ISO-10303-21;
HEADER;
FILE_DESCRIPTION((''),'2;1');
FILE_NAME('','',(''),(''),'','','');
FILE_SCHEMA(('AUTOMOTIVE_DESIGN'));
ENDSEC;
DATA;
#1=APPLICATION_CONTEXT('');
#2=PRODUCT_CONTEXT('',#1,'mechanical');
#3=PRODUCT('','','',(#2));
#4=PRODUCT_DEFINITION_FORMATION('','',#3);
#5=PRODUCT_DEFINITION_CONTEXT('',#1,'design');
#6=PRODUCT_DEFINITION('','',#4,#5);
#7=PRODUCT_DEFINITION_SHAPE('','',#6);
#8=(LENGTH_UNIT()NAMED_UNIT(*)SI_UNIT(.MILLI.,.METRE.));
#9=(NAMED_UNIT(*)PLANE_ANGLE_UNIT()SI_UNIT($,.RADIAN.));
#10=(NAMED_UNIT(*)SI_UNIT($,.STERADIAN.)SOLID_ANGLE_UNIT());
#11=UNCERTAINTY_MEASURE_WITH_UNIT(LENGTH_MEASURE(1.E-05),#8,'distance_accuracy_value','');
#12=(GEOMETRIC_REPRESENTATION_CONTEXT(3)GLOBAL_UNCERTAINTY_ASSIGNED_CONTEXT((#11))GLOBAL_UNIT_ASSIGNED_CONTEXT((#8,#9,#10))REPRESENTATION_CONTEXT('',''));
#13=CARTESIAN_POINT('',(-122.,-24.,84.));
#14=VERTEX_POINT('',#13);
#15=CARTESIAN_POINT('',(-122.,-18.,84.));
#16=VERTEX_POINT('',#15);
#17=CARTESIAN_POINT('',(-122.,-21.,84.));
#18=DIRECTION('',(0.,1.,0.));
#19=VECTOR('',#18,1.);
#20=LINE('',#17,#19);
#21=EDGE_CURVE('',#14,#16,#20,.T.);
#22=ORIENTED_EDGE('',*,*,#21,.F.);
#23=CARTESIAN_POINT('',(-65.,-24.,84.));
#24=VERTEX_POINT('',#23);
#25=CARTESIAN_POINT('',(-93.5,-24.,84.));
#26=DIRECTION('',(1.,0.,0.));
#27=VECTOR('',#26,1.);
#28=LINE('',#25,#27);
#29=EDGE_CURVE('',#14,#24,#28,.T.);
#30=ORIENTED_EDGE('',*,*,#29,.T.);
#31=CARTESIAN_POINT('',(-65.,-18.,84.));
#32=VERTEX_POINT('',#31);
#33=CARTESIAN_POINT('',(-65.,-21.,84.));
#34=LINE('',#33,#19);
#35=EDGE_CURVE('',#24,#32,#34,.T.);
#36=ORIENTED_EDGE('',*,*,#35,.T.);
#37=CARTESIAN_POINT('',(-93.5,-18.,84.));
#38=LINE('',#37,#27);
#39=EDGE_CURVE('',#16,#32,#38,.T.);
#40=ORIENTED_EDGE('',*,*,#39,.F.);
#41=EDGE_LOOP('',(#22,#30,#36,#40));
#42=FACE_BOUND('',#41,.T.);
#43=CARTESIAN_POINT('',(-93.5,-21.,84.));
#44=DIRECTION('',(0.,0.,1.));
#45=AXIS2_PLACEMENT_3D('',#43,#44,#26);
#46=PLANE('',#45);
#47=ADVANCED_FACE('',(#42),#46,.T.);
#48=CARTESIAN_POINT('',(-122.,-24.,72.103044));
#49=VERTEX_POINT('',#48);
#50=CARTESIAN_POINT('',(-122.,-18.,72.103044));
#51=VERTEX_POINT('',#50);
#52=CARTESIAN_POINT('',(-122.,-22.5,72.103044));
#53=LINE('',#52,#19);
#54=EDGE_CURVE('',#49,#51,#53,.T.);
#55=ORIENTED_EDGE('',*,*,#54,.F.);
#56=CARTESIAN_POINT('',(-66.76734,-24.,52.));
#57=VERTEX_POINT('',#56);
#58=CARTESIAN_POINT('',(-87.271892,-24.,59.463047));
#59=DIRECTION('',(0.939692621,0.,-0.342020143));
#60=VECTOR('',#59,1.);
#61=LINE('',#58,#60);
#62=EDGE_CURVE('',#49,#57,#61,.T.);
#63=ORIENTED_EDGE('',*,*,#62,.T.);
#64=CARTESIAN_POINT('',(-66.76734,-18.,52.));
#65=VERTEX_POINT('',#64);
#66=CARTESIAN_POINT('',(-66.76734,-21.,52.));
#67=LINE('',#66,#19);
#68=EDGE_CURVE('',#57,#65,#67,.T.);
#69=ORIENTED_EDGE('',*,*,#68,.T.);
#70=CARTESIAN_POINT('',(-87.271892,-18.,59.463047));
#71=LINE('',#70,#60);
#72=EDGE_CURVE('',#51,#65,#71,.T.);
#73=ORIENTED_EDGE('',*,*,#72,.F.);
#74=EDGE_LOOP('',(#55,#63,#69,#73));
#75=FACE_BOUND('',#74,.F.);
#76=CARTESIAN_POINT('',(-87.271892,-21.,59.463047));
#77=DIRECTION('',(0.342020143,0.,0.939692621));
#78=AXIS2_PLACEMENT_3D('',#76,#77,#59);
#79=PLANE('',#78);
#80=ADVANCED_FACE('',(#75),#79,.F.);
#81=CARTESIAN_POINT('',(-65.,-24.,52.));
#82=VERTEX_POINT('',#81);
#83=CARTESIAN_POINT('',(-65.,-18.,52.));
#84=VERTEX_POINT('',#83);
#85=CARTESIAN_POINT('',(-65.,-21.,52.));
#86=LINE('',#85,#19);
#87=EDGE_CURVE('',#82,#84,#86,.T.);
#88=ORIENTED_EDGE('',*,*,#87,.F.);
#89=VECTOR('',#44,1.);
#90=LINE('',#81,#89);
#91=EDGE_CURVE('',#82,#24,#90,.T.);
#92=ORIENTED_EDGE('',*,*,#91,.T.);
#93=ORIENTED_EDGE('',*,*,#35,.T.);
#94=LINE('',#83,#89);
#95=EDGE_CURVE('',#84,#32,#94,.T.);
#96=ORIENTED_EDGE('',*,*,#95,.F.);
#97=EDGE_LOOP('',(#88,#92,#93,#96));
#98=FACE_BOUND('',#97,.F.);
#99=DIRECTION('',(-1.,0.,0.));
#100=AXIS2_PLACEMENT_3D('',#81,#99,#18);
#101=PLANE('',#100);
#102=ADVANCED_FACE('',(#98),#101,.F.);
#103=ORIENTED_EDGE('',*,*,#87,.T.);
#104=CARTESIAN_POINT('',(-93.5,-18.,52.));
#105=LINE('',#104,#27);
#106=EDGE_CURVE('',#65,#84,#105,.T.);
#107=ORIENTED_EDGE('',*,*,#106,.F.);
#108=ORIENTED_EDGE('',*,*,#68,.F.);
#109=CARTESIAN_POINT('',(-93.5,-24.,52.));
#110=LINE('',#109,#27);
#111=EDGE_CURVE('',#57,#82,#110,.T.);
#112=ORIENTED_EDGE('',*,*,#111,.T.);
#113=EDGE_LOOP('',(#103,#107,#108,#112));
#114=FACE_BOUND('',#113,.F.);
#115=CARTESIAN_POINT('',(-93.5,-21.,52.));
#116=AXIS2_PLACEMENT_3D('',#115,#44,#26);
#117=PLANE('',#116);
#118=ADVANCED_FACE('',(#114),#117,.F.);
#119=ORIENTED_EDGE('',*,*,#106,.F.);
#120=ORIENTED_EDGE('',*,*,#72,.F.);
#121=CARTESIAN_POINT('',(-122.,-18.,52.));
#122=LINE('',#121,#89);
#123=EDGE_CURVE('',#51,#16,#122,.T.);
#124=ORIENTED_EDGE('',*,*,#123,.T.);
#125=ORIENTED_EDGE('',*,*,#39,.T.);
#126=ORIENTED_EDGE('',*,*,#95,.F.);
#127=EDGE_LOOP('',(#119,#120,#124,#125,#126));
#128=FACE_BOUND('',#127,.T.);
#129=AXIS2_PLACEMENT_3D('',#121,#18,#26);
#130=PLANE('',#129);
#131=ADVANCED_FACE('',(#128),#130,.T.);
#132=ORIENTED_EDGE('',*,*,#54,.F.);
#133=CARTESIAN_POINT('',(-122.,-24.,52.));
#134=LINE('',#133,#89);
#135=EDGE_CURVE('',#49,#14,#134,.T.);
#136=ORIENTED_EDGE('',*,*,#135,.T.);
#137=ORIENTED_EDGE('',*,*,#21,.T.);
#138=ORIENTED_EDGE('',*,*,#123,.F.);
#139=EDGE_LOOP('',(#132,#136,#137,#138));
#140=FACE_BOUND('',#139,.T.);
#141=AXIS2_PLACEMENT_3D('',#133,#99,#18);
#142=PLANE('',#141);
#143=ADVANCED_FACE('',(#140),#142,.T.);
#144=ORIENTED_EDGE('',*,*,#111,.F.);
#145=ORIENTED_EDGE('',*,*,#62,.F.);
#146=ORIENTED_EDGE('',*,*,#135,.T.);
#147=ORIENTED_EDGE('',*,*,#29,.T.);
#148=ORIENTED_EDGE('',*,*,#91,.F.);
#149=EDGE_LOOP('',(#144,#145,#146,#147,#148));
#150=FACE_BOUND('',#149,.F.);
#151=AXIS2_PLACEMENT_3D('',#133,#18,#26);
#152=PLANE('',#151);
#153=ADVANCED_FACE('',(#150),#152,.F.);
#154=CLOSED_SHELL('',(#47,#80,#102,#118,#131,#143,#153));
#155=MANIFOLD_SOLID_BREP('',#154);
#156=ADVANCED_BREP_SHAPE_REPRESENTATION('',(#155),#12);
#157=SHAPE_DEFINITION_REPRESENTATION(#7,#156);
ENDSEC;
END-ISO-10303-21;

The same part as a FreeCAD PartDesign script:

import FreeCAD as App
import Part
import Sketcher

V = App.Vector

doc = App.newDocument("Part")
body = doc.addObject("PartDesign::Body", "Body")

# Sketch on XY plane
sketch1 = doc.addObject("Sketcher::SketchObject", "Sketch")
body.addObject(sketch1)
sketch1.AttachmentSupport = (doc.XY_Plane, [""])
sketch1.MapMode = "FlatFace"
sketch1.addGeometry([
    Part.LineSegment(V(0, 6, 0), V(0, 0, 0)),
    Part.LineSegment(V(0, 0, 0), V(80, 0, 0)),
    Part.LineSegment(V(80, 0, 0), V(80, 6, 0)),
    Part.LineSegment(V(80, 6, 0), V(0, 6, 0)),
], False)
sketch1.addConstraint([
    Sketcher.Constraint("Coincident", 0, 2, 1, 1),
    Sketcher.Constraint("Coincident", 1, 2, 2, 1),
    Sketcher.Constraint("Coincident", 2, 2, 3, 1),
    Sketcher.Constraint("Coincident", 3, 2, 0, 1),
    Sketcher.Constraint("Vertical", 0),
    Sketcher.Constraint("Horizontal", 1),
    Sketcher.Constraint("Vertical", 2),
    Sketcher.Constraint("Horizontal", 3),
    Sketcher.Constraint("Coincident", 0, 2, -1, 1),
    Sketcher.Constraint("DistanceX", 1, 1, 1, 2, 80.0),
    Sketcher.Constraint("DistanceY", 0, 2, 0, 1, 6.0),
])
pad1 = doc.addObject("PartDesign::Pad", "Pad")
body.addObject(pad1)
pad1.Profile = sketch1
pad1.Length = 20
body2 = doc.addObject("PartDesign::Body", "Body001")
doc.recompute()

body.Placement = App.Placement(V(-131.7, -24, 54.35), App.Rotation(V(0, 1, 0), 20))
boolean = doc.addObject("PartDesign::Boolean", "Boolean")
body2.addObject(boolean)
boolean.Type = "Fuse"
boolean.addObjects([body])
body3 = doc.addObject("PartDesign::Body", "Body002")

# Sketch on XY plane
sketch2 = doc.addObject("Sketcher::SketchObject", "Sketch001")
body3.addObject(sketch2)
sketch2.AttachmentSupport = (doc.getObject("XY_Plane002"), [""])
sketch2.MapMode = "FlatFace"
sketch2.AttachmentOffset = App.Placement(V(0, 0, 52), App.Rotation())
sketch2.addGeometry([
    Part.LineSegment(V(-122, -18, 0), V(-122, -24, 0)),
    Part.LineSegment(V(-122, -24, 0), V(-65, -24, 0)),
    Part.LineSegment(V(-65, -24, 0), V(-65, -18, 0)),
    Part.LineSegment(V(-65, -18, 0), V(-122, -18, 0)),
], False)
sketch2.addConstraint([
    Sketcher.Constraint("Coincident", 0, 2, 1, 1),
    Sketcher.Constraint("Coincident", 1, 2, 2, 1),
    Sketcher.Constraint("Coincident", 2, 2, 3, 1),
    Sketcher.Constraint("Coincident", 3, 2, 0, 1),
    Sketcher.Constraint("Vertical", 0),
    Sketcher.Constraint("Horizontal", 1),
    Sketcher.Constraint("Vertical", 2),
    Sketcher.Constraint("Horizontal", 3),
    Sketcher.Constraint("DistanceX", 1, 1, 1, 2, 57.0),
    Sketcher.Constraint("DistanceY", 0, 2, 0, 1, 6.0),
    Sketcher.Constraint("DistanceX", 0, 2, -1, 1, 122.0),
    Sketcher.Constraint("DistanceY", 0, 2, -1, 1, 24.0),
])
pad2 = doc.addObject("PartDesign::Pad", "Pad001")
body3.addObject(pad2)
pad2.Profile = sketch2
pad2.Length = 32
doc.recompute()

boolean2 = doc.addObject("PartDesign::Boolean", "Boolean001")
body3.addObject(boolean2)
boolean2.Type = "Cut"
boolean2.addObjects([body2])

doc.recompute()
